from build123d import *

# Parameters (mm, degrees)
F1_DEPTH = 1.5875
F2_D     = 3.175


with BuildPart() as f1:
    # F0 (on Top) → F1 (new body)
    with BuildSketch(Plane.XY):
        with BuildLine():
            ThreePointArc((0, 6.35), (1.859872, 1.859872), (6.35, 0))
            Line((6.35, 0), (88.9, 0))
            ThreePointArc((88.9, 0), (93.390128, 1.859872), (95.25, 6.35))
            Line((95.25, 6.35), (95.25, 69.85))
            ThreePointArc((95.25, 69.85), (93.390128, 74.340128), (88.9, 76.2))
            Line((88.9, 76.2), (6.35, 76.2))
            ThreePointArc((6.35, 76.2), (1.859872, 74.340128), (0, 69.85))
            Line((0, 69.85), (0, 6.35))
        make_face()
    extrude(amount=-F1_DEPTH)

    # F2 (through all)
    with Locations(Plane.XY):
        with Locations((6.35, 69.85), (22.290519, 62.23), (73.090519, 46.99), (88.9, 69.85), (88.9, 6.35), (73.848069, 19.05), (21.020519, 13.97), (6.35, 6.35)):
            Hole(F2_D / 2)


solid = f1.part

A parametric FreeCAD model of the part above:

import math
import FreeCAD as App
import Part
import Sketcher

V = App.Vector
Q = App.Units.Quantity

doc = App.newDocument("Part")
body = doc.addObject("PartDesign::Body", "Body")

# Sketch on XY plane
sketch1 = doc.addObject("Sketcher::SketchObject", "Sketch")
body.addObject(sketch1)
sketch1.AttachmentSupport = (doc.XY_Plane, [""])
sketch1.MapMode = "FlatFace"
sketch1.addGeometry([
    Part.ArcOfCircle(Part.Circle(V(6, 6, 0), V(0, 0, 1), 6), math.radians(-180), math.radians(-90)),  # 0
    Part.LineSegment(V(6, 0, 0), V(89, 0, 0)),  # 1
    Part.ArcOfCircle(Part.Circle(V(89, 6, 0), V(0, 0, 1), 6), math.radians(-90), math.radians(0)),  # 2
    Part.LineSegment(V(95, 6, 0), V(95, 70, 0)),  # 3
    Part.ArcOfCircle(Part.Circle(V(89, 70, 0), V(0, 0, 1), 6), math.radians(0), math.radians(90)),  # 4
    Part.LineSegment(V(89, 76, 0), V(6, 76, 0)),  # 5
    Part.ArcOfCircle(Part.Circle(V(6, 70, 0), V(0, 0, 1), 6), math.radians(90), math.radians(180)),  # 6
    Part.LineSegment(V(0, 70, 0), V(0, 6, 0)),  # 7
], False)
sketch1.addConstraint([
    Sketcher.Constraint("Tangent", 0, 2, 1, 1),
    Sketcher.Constraint("Tangent", 1, 2, 2, 1),
    Sketcher.Constraint("Tangent", 2, 2, 3, 1),
    Sketcher.Constraint("Tangent", 3, 2, 4, 1),
    Sketcher.Constraint("Tangent", 4, 2, 5, 1),
    Sketcher.Constraint("Tangent", 5, 2, 6, 1),
    Sketcher.Constraint("Tangent", 6, 2, 7, 1),
    Sketcher.Constraint("Tangent", 7, 2, 0, 1),
    Sketcher.Constraint("Horizontal", 1),
    Sketcher.Constraint("Vertical", 3),
    Sketcher.Constraint("Horizontal", 5),
    Sketcher.Constraint("Vertical", 7),
    Sketcher.Constraint("Equal", 0, 2),
    Sketcher.Constraint("Equal", 2, 4),
    Sketcher.Constraint("Equal", 4, 6),
    Sketcher.Constraint("PointOnObject", 0, 2, -1),
    Sketcher.Constraint("PointOnObject", 6, 2, -2),
    Sketcher.Constraint("Radius", 0, Q("0.25 in")),
    Sketcher.Constraint("DistanceY", 3, 1, 3, 2, Q("2.5 in")),
    Sketcher.Constraint("DistanceX", 1, 1, 1, 2, Q("3.25 in")),
])
pad1 = doc.addObject("PartDesign::Pad", "Pad")
body.addObject(pad1)
pad1.Profile = sketch1
pad1.Length = Q("0.0625 in")
pad1.Reversed = True

# Sketch on XY plane
sketch2 = doc.addObject("Sketcher::SketchObject", "Sketch001")
body.addObject(sketch2)
sketch2.AttachmentSupport = (doc.XY_Plane, [""])
sketch2.MapMode = "FlatFace"
sketch2.addGeometry([
    Part.Circle(V(6.3, 69.8, 0), V(0, 0, 1), 1.6),  # 0
    Part.Circle(V(22.3, 62.2, 0), V(0, 0, 1), 1.6),  # 1
    Part.Circle(V(73.1, 47, 0), V(0, 0, 1), 1.6),  # 2
    Part.Circle(V(88.9, 69.8, 0), V(0, 0, 1), 1.6),  # 3
    Part.Circle(V(88.9, 6.3, 0), V(0, 0, 1), 1.6),  # 4
    Part.Circle(V(73.8, 19.1, 0), V(0, 0, 1), 1.6),  # 5
    Part.Circle(V(21, 14, 0), V(0, 0, 1), 1.6),  # 6
    Part.Circle(V(6.3, 6.3, 0), V(0, 0, 1), 1.6),  # 7
], False)
sketch2.addConstraint([
    Sketcher.Constraint("Equal", 0, 1),
    Sketcher.Constraint("Equal", 1, 2),
    Sketcher.Constraint("Equal", 2, 3),
    Sketcher.Constraint("Equal", 3, 4),
    Sketcher.Constraint("Equal", 4, 5),
    Sketcher.Constraint("Equal", 5, 6),
    Sketcher.Constraint("Equal", 6, 7),
    Sketcher.Constraint("Horizontal", 0, 3, 3, 3),
    Sketcher.Constraint("Horizontal", 4, 3, 7, 3),
    Sketcher.Constraint("Vertical", 3, 3, 4, 3),
    Sketcher.Constraint("Vertical", 0, 3, 7, 3),
    Sketcher.Constraint("Diameter", 0, Q("0.125 in")),
    Sketcher.Constraint("DistanceX", 1, 3, 2, 3, Q("2 in")),
    Sketcher.Constraint("DistanceY", 5, 3, 3, 3, Q("2 in")),
    Sketcher.Constraint("DistanceX", -1, 1, 3, 3, Q("3.5 in")),
    Sketcher.Constraint("DistanceY", 1, 3, 0, 3, Q("0.3 in")),
    Sketcher.Constraint("DistanceY", 2, 3, 1, 3, Q("0.6 in")),
    Sketcher.Constraint("DistanceY", 4, 3, 2, 3, Q("1.6 in")),
    Sketcher.Constraint("DistanceY", 6, 3, 1, 3, Q("1.9 in")),
    Sketcher.Constraint("DistanceX", -1, 1, 0, 3, Q("0.25 in")),
    Sketcher.Constraint("DistanceY", -1, 1, 0, 3, Q("2.75 in")),
    Sketcher.Constraint("DistanceX", 6, 3, 1, 3, Q("0.05 in")),
    Sketcher.Constraint("DistanceX", -1, 1, 1, 3, 22.290519),
    Sketcher.Constraint("DistanceX", -1, 1, 5, 3, 73.848069),
])
doc.recompute()
hole = doc.addObject("PartDesign::Hole", "Hole")
body.addObject(hole)
hole.Profile = sketch2
hole.ThreadType = "None"
hole.Diameter = Q("0.125 in")
hole.DepthType = "ThroughAll"

doc.recompute()
